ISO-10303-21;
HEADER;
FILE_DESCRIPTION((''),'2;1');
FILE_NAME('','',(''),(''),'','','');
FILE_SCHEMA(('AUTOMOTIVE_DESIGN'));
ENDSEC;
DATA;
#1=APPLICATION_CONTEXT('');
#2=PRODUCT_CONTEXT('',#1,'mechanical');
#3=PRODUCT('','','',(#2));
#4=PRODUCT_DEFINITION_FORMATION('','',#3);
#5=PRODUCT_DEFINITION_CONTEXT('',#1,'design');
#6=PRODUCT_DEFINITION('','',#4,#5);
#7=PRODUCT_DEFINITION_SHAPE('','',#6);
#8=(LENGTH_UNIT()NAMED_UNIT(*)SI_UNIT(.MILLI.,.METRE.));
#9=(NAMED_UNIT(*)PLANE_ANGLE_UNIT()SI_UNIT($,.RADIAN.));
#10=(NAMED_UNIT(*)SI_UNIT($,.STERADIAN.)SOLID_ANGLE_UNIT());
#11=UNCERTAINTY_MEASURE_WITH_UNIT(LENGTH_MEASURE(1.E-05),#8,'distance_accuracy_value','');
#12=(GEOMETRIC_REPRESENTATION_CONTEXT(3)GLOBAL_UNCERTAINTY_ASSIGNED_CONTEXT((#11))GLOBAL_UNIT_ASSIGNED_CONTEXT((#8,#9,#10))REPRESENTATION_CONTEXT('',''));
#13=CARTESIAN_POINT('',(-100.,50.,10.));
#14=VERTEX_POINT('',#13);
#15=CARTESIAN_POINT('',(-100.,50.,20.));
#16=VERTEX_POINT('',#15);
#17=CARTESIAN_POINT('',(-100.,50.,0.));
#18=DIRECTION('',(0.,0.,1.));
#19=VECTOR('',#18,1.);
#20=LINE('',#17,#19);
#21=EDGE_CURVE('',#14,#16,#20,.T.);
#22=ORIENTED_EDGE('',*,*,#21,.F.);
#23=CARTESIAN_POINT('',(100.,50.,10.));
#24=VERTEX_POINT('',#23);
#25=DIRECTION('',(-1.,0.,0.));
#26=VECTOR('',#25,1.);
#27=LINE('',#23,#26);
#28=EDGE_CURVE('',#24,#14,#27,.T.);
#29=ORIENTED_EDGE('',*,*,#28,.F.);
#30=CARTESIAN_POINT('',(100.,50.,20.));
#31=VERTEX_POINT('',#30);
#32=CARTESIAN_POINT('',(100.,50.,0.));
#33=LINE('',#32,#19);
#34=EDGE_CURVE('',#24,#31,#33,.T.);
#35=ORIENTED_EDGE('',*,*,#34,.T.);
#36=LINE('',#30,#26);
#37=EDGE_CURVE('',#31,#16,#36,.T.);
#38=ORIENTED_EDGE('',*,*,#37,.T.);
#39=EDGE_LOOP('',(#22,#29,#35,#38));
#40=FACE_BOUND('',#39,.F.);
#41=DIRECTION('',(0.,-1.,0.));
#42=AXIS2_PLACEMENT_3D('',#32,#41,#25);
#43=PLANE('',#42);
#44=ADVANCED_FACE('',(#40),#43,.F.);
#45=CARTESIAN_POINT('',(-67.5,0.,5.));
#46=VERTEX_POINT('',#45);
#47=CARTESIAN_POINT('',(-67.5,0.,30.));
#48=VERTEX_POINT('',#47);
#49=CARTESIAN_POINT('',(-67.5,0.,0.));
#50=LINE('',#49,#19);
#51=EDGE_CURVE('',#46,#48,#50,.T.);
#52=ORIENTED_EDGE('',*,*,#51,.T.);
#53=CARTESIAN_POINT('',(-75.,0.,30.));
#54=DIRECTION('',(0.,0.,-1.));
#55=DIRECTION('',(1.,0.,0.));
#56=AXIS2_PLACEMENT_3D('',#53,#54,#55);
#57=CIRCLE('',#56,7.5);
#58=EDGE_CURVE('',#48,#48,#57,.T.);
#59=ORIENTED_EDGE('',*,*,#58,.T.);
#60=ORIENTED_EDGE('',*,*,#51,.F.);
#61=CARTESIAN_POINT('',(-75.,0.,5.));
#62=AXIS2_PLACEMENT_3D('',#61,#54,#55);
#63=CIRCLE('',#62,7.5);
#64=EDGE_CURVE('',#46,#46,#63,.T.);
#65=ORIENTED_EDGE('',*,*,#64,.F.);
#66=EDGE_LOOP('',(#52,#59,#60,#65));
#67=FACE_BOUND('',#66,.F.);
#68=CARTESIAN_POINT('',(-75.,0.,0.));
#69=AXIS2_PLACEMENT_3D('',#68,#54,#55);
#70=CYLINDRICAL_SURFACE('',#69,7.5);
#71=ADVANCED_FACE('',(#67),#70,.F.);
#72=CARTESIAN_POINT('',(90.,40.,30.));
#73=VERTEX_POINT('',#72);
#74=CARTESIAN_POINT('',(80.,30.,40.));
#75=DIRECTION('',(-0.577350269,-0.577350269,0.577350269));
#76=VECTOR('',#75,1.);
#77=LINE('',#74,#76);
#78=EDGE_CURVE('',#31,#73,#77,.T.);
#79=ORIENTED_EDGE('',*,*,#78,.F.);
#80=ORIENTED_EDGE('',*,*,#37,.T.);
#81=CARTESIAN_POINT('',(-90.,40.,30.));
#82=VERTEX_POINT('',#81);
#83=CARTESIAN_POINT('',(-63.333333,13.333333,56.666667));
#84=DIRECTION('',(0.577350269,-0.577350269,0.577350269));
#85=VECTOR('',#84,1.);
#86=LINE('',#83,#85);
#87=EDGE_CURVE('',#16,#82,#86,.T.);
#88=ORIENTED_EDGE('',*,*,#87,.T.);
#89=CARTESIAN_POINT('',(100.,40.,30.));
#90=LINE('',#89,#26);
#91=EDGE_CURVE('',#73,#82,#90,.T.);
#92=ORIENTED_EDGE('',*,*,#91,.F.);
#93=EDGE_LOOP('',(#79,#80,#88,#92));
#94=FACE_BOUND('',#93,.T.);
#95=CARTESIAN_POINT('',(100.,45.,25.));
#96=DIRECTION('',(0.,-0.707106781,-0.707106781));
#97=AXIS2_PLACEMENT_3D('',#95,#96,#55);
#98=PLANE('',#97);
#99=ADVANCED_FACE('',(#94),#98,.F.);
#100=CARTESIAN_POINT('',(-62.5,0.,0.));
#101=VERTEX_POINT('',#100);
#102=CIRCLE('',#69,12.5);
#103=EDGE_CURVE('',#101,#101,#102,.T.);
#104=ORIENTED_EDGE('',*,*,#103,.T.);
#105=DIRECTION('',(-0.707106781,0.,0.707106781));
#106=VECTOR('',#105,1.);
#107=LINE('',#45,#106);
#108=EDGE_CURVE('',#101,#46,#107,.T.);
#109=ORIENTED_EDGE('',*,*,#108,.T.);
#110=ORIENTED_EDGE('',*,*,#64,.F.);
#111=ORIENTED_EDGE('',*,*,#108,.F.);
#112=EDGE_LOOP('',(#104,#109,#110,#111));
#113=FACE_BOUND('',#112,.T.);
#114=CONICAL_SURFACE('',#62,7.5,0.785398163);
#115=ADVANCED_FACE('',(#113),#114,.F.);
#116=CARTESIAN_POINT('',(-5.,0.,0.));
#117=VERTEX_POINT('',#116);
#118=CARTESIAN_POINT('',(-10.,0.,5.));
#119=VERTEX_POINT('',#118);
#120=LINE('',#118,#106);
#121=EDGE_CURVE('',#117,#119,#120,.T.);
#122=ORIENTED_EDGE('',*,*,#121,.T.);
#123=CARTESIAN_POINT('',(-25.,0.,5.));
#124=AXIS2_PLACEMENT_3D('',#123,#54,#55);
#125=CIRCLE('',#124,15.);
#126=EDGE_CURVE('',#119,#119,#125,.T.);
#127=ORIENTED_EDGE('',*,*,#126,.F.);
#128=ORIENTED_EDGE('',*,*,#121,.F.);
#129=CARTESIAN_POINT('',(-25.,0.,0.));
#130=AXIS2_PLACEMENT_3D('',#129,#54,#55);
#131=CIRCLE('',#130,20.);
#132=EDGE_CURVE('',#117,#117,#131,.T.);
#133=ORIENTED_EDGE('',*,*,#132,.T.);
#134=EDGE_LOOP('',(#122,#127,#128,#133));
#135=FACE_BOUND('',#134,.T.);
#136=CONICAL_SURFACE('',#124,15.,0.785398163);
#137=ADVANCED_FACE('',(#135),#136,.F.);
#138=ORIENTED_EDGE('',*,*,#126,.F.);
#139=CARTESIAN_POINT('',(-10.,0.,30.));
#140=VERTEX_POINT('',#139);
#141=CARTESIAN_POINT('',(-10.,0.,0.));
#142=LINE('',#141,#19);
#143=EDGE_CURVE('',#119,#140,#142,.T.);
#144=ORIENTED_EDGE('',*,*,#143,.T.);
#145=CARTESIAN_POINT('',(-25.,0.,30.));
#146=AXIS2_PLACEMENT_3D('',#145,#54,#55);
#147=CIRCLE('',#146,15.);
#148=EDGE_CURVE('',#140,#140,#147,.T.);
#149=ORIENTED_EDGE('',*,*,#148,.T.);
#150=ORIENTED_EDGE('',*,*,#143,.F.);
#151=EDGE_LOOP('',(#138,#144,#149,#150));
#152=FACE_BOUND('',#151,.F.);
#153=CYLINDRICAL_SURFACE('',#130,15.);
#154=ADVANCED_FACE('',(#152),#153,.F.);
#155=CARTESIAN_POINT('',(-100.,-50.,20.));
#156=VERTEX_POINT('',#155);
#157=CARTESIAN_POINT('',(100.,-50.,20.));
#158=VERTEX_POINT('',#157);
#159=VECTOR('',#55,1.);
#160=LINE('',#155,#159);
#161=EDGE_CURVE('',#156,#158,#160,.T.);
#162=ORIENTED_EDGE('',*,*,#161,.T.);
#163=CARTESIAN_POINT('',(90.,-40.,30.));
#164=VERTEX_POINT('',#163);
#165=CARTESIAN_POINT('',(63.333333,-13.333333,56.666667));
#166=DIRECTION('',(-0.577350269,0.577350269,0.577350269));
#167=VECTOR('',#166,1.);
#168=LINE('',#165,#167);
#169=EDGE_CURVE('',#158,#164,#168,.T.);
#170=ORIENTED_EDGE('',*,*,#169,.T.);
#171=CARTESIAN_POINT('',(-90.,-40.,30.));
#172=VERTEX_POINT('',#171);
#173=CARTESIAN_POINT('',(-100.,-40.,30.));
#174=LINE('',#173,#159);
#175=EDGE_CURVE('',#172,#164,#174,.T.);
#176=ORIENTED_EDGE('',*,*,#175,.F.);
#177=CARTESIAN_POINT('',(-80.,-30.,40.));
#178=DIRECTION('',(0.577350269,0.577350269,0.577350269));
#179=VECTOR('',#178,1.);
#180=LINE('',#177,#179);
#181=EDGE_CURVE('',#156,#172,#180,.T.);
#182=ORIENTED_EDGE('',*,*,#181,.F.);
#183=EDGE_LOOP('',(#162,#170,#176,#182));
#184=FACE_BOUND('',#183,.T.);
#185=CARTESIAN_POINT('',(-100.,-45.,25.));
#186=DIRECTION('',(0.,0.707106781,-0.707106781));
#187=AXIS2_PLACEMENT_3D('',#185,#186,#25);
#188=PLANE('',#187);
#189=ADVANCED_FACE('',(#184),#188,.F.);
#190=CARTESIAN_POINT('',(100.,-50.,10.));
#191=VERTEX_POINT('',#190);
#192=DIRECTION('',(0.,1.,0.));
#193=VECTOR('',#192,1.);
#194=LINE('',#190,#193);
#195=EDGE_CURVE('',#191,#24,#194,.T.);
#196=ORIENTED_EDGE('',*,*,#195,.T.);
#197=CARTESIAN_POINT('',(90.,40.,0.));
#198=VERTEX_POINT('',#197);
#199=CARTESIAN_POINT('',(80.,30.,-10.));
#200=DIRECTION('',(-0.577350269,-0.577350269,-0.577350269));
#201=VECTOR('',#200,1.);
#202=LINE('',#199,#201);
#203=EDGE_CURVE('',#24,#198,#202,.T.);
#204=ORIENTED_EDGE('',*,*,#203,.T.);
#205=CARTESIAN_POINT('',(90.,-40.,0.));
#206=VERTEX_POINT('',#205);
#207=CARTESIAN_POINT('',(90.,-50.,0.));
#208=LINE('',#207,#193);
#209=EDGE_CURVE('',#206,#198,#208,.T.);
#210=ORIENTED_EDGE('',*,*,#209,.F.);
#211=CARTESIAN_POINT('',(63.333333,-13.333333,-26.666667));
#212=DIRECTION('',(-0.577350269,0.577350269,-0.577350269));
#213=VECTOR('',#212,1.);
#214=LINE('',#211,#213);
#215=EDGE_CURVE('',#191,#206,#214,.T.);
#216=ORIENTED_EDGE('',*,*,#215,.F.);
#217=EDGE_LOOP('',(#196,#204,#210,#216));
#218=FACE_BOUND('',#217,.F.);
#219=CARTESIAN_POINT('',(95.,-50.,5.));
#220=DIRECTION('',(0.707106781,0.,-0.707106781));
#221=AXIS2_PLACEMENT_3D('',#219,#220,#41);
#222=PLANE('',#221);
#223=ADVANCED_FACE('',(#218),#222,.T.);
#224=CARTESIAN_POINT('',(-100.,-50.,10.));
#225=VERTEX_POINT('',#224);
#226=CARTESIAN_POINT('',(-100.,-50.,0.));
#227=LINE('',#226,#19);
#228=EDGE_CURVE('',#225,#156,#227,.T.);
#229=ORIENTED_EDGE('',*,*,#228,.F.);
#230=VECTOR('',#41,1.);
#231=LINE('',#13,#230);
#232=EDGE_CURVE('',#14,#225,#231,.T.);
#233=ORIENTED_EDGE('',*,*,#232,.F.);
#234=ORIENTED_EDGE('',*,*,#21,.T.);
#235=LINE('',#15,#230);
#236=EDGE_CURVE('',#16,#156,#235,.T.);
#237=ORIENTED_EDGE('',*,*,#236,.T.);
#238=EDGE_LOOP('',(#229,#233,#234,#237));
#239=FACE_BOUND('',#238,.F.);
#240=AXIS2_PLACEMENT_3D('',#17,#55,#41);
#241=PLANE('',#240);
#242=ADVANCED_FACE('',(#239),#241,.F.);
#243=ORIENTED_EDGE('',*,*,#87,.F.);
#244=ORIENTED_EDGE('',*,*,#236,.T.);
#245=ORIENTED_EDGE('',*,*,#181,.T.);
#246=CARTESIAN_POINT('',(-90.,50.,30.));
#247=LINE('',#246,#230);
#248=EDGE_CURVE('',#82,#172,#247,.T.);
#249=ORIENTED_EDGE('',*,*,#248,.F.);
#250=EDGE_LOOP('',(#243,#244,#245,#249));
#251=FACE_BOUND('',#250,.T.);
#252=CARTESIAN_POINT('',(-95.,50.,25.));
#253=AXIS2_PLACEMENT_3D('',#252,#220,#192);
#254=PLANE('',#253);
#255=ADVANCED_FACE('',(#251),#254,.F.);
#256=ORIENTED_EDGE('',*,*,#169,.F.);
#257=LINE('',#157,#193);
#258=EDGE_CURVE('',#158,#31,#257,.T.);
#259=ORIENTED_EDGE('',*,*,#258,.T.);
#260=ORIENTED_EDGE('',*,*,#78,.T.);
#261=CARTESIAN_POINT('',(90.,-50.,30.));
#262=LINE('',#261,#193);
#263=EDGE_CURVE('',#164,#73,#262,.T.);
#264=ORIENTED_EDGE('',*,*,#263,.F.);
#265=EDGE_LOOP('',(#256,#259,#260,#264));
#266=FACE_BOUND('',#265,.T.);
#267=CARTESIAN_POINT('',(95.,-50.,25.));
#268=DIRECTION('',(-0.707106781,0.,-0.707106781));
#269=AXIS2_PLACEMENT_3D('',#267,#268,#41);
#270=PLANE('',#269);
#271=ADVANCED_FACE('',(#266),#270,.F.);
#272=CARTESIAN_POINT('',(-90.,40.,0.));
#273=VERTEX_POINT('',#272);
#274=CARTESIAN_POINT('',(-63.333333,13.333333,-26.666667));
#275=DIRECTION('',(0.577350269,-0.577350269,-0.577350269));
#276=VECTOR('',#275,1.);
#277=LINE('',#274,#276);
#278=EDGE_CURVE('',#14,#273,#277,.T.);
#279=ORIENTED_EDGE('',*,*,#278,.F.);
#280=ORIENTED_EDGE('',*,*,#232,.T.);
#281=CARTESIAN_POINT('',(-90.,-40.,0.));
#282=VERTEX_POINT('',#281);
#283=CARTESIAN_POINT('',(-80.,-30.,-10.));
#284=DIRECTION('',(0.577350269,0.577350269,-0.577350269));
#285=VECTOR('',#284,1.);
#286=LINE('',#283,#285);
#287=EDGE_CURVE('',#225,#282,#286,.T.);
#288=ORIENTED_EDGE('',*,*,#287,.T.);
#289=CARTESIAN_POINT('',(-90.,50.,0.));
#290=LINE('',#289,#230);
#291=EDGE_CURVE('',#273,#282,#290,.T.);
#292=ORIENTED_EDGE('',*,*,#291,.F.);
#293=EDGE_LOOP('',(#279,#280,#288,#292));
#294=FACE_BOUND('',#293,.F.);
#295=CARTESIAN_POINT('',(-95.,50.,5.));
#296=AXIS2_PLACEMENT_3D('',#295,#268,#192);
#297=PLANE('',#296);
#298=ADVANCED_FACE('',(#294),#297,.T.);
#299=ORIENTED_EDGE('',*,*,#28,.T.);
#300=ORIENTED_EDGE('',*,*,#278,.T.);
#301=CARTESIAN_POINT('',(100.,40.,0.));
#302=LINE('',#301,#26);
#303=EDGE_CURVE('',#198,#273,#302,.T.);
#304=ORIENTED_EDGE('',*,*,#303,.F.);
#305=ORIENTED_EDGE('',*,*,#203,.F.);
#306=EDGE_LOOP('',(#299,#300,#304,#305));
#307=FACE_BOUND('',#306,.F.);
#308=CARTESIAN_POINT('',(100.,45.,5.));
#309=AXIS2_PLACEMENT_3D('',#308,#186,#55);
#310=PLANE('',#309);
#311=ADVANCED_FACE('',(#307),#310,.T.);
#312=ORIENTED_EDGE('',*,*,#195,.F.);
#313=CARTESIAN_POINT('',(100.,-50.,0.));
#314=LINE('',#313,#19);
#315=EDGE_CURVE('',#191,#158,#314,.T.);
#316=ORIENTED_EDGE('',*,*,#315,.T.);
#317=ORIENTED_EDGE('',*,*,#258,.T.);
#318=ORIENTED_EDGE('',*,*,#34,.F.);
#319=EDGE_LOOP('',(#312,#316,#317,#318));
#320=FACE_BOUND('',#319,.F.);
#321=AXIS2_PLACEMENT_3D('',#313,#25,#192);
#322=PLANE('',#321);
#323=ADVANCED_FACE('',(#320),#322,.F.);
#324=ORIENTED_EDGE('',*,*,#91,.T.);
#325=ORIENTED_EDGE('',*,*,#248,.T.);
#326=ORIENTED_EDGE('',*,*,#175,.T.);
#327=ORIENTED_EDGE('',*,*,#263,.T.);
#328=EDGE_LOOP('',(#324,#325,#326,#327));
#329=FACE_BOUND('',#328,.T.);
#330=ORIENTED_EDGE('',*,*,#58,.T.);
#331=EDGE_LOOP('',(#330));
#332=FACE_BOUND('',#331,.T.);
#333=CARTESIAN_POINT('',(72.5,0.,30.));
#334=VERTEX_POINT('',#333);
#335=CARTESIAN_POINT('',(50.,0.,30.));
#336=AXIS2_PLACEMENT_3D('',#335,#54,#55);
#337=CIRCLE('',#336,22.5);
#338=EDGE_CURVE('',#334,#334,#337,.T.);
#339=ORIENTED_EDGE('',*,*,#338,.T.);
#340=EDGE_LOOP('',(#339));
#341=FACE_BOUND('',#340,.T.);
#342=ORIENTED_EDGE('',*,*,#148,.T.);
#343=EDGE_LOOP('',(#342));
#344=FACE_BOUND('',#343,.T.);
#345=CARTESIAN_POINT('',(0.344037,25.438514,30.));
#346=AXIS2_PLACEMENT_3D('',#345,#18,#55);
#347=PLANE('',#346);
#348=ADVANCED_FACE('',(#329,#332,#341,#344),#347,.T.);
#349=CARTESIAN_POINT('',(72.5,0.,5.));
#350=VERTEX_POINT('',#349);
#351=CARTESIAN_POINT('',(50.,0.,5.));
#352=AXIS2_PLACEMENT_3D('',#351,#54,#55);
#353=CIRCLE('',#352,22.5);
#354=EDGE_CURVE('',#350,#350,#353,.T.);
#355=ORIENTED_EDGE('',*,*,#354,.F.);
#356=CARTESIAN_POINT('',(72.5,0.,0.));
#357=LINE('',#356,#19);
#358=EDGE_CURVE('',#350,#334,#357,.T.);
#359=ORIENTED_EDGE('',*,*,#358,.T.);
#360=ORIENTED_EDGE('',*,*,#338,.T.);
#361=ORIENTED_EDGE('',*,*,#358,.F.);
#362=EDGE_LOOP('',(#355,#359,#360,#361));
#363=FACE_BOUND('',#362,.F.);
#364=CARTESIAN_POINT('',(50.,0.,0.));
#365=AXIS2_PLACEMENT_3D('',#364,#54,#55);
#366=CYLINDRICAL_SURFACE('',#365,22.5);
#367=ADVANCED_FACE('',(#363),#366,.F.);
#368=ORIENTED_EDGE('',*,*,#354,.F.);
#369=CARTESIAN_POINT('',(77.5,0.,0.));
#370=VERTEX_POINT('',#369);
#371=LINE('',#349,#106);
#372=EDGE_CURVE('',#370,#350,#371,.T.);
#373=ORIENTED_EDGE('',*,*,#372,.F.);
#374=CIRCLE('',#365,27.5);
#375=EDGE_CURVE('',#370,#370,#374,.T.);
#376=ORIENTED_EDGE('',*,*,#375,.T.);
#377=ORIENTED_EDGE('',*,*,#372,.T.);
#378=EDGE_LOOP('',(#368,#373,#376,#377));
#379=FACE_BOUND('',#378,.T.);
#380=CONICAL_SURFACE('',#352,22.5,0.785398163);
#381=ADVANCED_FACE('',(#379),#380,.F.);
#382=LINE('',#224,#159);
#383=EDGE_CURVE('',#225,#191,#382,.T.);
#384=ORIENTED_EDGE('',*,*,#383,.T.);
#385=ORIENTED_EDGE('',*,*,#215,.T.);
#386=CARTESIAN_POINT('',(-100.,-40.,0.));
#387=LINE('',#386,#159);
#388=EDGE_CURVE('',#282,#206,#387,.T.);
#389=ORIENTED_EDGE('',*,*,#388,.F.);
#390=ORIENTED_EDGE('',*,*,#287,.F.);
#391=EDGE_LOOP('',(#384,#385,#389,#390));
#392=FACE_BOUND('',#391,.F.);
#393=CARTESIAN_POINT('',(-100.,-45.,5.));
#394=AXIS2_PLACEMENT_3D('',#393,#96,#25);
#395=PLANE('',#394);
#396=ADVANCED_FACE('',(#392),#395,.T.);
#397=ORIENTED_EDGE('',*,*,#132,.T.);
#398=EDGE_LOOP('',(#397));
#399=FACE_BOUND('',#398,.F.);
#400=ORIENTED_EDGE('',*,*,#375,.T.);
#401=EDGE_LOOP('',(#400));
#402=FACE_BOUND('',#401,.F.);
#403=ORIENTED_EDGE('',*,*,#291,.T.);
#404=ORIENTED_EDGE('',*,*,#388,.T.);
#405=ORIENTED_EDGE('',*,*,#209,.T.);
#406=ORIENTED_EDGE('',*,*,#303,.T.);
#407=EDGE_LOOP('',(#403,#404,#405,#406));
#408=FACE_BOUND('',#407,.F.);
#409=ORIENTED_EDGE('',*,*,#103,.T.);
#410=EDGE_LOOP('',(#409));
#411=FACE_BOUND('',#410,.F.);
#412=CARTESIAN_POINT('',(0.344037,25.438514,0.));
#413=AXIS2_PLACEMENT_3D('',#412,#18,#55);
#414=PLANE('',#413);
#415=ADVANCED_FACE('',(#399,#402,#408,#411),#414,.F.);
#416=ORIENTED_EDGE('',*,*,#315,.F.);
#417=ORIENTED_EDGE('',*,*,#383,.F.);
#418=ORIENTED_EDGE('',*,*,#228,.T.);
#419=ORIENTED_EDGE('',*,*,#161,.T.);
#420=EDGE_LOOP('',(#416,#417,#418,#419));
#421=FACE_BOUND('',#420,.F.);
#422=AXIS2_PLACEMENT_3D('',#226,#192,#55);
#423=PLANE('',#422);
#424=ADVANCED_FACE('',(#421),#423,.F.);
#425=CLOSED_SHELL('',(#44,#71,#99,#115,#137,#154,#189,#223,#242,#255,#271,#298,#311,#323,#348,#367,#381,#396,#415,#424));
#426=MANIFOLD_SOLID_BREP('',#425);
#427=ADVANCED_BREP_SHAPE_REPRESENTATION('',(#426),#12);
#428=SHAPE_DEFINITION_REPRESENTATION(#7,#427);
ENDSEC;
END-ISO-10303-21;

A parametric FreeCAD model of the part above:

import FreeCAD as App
import Part
import Sketcher
from FreeCAD import Vector


def edges_at(feature, points):
    """Names of the edges that pass closest to the given points."""
    edges = feature.Shape.Edges
    near = lambda p: min(range(len(edges)), key=lambda i: edges[i].distToShape(Part.Vertex(*p))[0])
    return sorted({f"Edge{near(p) + 1}" for p in points})

doc = App.newDocument("Part")
body = doc.addObject("PartDesign::Body", "Body")

sketch1 = body.newObject("Sketcher::SketchObject", "Sketch")
sketch1.AttachmentSupport = (doc.getObject("XY_Plane"), [""])
sketch1.MapMode = "FlatFace"
sketch1.addGeometry(Part.LineSegment(Vector(100, 50, 0), Vector(-100, 50, 0)), False)
sketch1.addGeometry(Part.LineSegment(Vector(-100, 50, 0), Vector(-100, -50, 0)), False)
sketch1.addGeometry(Part.LineSegment(Vector(-100, -50, 0), Vector(100, -50, 0)), False)
sketch1.addGeometry(Part.LineSegment(Vector(100, -50, 0), Vector(100, 50, 0)), False)
sketch1.addGeometry(Part.Circle(Vector(-75, 0, 0), Vector(0, 0, 1), 7.5), False)
sketch1.addGeometry(Part.Circle(Vector(-25, 0, 0), Vector(0, 0, 1), 15), False)
sketch1.addGeometry(Part.Circle(Vector(50, 0, 0), Vector(0, 0, 1), 22.5), False)
sketch1.addConstraint(Sketcher.Constraint("Coincident", 0, 2, 1, 1))
sketch1.addConstraint(Sketcher.Constraint("Coincident", 1, 2, 2, 1))
sketch1.addConstraint(Sketcher.Constraint("Coincident", 2, 2, 3, 1))
sketch1.addConstraint(Sketcher.Constraint("Coincident", 3, 2, 0, 1))
sketch1.addConstraint(Sketcher.Constraint("Horizontal", 0))
sketch1.addConstraint(Sketcher.Constraint("Vertical", 1))
sketch1.addConstraint(Sketcher.Constraint("Horizontal", 2))
sketch1.addConstraint(Sketcher.Constraint("Vertical", 3))
sketch1.addConstraint(Sketcher.Constraint("Symmetric", 0, 2, 2, 2, -1, 1))
sketch1.addConstraint(Sketcher.Constraint("PointOnObject", 4, 3, -1))
sketch1.addConstraint(Sketcher.Constraint("PointOnObject", 5, 3, -1))
sketch1.addConstraint(Sketcher.Constraint("PointOnObject", 6, 3, -1))
sketch1.addConstraint(Sketcher.Constraint("Diameter", 4, 15.0))
sketch1.addConstraint(Sketcher.Constraint("Diameter", 5, 30.0))
sketch1.addConstraint(Sketcher.Constraint("Diameter", 6, 45.0))
sketch1.addConstraint(Sketcher.Constraint("DistanceX", 0, 2, 0, 1, 200.0))
sketch1.addConstraint(Sketcher.Constraint("DistanceY", 1, 2, 1, 1, 100.0))
sketch1.addConstraint(Sketcher.Constraint("DistanceX", 4, 3, -1, 1, 75.0))
sketch1.addConstraint(Sketcher.Constraint("DistanceX", 5, 3, -1, 1, 25.0))
sketch1.addConstraint(Sketcher.Constraint("DistanceX", -1, 1, 6, 3, 50.0))
pad1 = body.newObject("PartDesign::Pad", "Pad")
pad1.Profile = sketch1
pad1.Length = 30
doc.recompute()

chamfer = body.newObject("PartDesign::Chamfer", "Chamfer")
chamfer.Base = (pad1, edges_at(pad1, [
    (-100, 0, 30),
    (-100, 0, 0),
    (100, 0, 30),
    (100, 0, 0),
    (0, -50, 30),
    (0, 50, 30),
    (0, -50, 0),
    (0, 50, 0),
]))
chamfer.ChamferType = "Two distances"
chamfer.Size = 10
chamfer.Size2 = 10
doc.recompute()

chamfer2 = body.newObject("PartDesign::Chamfer", "Chamfer001")
chamfer2.Base = (chamfer, edges_at(chamfer, [(-82.5, 0, 0), (-40, 0, 0), (27.5, 0, 0)]))
chamfer2.Size = 5

doc.recompute()
